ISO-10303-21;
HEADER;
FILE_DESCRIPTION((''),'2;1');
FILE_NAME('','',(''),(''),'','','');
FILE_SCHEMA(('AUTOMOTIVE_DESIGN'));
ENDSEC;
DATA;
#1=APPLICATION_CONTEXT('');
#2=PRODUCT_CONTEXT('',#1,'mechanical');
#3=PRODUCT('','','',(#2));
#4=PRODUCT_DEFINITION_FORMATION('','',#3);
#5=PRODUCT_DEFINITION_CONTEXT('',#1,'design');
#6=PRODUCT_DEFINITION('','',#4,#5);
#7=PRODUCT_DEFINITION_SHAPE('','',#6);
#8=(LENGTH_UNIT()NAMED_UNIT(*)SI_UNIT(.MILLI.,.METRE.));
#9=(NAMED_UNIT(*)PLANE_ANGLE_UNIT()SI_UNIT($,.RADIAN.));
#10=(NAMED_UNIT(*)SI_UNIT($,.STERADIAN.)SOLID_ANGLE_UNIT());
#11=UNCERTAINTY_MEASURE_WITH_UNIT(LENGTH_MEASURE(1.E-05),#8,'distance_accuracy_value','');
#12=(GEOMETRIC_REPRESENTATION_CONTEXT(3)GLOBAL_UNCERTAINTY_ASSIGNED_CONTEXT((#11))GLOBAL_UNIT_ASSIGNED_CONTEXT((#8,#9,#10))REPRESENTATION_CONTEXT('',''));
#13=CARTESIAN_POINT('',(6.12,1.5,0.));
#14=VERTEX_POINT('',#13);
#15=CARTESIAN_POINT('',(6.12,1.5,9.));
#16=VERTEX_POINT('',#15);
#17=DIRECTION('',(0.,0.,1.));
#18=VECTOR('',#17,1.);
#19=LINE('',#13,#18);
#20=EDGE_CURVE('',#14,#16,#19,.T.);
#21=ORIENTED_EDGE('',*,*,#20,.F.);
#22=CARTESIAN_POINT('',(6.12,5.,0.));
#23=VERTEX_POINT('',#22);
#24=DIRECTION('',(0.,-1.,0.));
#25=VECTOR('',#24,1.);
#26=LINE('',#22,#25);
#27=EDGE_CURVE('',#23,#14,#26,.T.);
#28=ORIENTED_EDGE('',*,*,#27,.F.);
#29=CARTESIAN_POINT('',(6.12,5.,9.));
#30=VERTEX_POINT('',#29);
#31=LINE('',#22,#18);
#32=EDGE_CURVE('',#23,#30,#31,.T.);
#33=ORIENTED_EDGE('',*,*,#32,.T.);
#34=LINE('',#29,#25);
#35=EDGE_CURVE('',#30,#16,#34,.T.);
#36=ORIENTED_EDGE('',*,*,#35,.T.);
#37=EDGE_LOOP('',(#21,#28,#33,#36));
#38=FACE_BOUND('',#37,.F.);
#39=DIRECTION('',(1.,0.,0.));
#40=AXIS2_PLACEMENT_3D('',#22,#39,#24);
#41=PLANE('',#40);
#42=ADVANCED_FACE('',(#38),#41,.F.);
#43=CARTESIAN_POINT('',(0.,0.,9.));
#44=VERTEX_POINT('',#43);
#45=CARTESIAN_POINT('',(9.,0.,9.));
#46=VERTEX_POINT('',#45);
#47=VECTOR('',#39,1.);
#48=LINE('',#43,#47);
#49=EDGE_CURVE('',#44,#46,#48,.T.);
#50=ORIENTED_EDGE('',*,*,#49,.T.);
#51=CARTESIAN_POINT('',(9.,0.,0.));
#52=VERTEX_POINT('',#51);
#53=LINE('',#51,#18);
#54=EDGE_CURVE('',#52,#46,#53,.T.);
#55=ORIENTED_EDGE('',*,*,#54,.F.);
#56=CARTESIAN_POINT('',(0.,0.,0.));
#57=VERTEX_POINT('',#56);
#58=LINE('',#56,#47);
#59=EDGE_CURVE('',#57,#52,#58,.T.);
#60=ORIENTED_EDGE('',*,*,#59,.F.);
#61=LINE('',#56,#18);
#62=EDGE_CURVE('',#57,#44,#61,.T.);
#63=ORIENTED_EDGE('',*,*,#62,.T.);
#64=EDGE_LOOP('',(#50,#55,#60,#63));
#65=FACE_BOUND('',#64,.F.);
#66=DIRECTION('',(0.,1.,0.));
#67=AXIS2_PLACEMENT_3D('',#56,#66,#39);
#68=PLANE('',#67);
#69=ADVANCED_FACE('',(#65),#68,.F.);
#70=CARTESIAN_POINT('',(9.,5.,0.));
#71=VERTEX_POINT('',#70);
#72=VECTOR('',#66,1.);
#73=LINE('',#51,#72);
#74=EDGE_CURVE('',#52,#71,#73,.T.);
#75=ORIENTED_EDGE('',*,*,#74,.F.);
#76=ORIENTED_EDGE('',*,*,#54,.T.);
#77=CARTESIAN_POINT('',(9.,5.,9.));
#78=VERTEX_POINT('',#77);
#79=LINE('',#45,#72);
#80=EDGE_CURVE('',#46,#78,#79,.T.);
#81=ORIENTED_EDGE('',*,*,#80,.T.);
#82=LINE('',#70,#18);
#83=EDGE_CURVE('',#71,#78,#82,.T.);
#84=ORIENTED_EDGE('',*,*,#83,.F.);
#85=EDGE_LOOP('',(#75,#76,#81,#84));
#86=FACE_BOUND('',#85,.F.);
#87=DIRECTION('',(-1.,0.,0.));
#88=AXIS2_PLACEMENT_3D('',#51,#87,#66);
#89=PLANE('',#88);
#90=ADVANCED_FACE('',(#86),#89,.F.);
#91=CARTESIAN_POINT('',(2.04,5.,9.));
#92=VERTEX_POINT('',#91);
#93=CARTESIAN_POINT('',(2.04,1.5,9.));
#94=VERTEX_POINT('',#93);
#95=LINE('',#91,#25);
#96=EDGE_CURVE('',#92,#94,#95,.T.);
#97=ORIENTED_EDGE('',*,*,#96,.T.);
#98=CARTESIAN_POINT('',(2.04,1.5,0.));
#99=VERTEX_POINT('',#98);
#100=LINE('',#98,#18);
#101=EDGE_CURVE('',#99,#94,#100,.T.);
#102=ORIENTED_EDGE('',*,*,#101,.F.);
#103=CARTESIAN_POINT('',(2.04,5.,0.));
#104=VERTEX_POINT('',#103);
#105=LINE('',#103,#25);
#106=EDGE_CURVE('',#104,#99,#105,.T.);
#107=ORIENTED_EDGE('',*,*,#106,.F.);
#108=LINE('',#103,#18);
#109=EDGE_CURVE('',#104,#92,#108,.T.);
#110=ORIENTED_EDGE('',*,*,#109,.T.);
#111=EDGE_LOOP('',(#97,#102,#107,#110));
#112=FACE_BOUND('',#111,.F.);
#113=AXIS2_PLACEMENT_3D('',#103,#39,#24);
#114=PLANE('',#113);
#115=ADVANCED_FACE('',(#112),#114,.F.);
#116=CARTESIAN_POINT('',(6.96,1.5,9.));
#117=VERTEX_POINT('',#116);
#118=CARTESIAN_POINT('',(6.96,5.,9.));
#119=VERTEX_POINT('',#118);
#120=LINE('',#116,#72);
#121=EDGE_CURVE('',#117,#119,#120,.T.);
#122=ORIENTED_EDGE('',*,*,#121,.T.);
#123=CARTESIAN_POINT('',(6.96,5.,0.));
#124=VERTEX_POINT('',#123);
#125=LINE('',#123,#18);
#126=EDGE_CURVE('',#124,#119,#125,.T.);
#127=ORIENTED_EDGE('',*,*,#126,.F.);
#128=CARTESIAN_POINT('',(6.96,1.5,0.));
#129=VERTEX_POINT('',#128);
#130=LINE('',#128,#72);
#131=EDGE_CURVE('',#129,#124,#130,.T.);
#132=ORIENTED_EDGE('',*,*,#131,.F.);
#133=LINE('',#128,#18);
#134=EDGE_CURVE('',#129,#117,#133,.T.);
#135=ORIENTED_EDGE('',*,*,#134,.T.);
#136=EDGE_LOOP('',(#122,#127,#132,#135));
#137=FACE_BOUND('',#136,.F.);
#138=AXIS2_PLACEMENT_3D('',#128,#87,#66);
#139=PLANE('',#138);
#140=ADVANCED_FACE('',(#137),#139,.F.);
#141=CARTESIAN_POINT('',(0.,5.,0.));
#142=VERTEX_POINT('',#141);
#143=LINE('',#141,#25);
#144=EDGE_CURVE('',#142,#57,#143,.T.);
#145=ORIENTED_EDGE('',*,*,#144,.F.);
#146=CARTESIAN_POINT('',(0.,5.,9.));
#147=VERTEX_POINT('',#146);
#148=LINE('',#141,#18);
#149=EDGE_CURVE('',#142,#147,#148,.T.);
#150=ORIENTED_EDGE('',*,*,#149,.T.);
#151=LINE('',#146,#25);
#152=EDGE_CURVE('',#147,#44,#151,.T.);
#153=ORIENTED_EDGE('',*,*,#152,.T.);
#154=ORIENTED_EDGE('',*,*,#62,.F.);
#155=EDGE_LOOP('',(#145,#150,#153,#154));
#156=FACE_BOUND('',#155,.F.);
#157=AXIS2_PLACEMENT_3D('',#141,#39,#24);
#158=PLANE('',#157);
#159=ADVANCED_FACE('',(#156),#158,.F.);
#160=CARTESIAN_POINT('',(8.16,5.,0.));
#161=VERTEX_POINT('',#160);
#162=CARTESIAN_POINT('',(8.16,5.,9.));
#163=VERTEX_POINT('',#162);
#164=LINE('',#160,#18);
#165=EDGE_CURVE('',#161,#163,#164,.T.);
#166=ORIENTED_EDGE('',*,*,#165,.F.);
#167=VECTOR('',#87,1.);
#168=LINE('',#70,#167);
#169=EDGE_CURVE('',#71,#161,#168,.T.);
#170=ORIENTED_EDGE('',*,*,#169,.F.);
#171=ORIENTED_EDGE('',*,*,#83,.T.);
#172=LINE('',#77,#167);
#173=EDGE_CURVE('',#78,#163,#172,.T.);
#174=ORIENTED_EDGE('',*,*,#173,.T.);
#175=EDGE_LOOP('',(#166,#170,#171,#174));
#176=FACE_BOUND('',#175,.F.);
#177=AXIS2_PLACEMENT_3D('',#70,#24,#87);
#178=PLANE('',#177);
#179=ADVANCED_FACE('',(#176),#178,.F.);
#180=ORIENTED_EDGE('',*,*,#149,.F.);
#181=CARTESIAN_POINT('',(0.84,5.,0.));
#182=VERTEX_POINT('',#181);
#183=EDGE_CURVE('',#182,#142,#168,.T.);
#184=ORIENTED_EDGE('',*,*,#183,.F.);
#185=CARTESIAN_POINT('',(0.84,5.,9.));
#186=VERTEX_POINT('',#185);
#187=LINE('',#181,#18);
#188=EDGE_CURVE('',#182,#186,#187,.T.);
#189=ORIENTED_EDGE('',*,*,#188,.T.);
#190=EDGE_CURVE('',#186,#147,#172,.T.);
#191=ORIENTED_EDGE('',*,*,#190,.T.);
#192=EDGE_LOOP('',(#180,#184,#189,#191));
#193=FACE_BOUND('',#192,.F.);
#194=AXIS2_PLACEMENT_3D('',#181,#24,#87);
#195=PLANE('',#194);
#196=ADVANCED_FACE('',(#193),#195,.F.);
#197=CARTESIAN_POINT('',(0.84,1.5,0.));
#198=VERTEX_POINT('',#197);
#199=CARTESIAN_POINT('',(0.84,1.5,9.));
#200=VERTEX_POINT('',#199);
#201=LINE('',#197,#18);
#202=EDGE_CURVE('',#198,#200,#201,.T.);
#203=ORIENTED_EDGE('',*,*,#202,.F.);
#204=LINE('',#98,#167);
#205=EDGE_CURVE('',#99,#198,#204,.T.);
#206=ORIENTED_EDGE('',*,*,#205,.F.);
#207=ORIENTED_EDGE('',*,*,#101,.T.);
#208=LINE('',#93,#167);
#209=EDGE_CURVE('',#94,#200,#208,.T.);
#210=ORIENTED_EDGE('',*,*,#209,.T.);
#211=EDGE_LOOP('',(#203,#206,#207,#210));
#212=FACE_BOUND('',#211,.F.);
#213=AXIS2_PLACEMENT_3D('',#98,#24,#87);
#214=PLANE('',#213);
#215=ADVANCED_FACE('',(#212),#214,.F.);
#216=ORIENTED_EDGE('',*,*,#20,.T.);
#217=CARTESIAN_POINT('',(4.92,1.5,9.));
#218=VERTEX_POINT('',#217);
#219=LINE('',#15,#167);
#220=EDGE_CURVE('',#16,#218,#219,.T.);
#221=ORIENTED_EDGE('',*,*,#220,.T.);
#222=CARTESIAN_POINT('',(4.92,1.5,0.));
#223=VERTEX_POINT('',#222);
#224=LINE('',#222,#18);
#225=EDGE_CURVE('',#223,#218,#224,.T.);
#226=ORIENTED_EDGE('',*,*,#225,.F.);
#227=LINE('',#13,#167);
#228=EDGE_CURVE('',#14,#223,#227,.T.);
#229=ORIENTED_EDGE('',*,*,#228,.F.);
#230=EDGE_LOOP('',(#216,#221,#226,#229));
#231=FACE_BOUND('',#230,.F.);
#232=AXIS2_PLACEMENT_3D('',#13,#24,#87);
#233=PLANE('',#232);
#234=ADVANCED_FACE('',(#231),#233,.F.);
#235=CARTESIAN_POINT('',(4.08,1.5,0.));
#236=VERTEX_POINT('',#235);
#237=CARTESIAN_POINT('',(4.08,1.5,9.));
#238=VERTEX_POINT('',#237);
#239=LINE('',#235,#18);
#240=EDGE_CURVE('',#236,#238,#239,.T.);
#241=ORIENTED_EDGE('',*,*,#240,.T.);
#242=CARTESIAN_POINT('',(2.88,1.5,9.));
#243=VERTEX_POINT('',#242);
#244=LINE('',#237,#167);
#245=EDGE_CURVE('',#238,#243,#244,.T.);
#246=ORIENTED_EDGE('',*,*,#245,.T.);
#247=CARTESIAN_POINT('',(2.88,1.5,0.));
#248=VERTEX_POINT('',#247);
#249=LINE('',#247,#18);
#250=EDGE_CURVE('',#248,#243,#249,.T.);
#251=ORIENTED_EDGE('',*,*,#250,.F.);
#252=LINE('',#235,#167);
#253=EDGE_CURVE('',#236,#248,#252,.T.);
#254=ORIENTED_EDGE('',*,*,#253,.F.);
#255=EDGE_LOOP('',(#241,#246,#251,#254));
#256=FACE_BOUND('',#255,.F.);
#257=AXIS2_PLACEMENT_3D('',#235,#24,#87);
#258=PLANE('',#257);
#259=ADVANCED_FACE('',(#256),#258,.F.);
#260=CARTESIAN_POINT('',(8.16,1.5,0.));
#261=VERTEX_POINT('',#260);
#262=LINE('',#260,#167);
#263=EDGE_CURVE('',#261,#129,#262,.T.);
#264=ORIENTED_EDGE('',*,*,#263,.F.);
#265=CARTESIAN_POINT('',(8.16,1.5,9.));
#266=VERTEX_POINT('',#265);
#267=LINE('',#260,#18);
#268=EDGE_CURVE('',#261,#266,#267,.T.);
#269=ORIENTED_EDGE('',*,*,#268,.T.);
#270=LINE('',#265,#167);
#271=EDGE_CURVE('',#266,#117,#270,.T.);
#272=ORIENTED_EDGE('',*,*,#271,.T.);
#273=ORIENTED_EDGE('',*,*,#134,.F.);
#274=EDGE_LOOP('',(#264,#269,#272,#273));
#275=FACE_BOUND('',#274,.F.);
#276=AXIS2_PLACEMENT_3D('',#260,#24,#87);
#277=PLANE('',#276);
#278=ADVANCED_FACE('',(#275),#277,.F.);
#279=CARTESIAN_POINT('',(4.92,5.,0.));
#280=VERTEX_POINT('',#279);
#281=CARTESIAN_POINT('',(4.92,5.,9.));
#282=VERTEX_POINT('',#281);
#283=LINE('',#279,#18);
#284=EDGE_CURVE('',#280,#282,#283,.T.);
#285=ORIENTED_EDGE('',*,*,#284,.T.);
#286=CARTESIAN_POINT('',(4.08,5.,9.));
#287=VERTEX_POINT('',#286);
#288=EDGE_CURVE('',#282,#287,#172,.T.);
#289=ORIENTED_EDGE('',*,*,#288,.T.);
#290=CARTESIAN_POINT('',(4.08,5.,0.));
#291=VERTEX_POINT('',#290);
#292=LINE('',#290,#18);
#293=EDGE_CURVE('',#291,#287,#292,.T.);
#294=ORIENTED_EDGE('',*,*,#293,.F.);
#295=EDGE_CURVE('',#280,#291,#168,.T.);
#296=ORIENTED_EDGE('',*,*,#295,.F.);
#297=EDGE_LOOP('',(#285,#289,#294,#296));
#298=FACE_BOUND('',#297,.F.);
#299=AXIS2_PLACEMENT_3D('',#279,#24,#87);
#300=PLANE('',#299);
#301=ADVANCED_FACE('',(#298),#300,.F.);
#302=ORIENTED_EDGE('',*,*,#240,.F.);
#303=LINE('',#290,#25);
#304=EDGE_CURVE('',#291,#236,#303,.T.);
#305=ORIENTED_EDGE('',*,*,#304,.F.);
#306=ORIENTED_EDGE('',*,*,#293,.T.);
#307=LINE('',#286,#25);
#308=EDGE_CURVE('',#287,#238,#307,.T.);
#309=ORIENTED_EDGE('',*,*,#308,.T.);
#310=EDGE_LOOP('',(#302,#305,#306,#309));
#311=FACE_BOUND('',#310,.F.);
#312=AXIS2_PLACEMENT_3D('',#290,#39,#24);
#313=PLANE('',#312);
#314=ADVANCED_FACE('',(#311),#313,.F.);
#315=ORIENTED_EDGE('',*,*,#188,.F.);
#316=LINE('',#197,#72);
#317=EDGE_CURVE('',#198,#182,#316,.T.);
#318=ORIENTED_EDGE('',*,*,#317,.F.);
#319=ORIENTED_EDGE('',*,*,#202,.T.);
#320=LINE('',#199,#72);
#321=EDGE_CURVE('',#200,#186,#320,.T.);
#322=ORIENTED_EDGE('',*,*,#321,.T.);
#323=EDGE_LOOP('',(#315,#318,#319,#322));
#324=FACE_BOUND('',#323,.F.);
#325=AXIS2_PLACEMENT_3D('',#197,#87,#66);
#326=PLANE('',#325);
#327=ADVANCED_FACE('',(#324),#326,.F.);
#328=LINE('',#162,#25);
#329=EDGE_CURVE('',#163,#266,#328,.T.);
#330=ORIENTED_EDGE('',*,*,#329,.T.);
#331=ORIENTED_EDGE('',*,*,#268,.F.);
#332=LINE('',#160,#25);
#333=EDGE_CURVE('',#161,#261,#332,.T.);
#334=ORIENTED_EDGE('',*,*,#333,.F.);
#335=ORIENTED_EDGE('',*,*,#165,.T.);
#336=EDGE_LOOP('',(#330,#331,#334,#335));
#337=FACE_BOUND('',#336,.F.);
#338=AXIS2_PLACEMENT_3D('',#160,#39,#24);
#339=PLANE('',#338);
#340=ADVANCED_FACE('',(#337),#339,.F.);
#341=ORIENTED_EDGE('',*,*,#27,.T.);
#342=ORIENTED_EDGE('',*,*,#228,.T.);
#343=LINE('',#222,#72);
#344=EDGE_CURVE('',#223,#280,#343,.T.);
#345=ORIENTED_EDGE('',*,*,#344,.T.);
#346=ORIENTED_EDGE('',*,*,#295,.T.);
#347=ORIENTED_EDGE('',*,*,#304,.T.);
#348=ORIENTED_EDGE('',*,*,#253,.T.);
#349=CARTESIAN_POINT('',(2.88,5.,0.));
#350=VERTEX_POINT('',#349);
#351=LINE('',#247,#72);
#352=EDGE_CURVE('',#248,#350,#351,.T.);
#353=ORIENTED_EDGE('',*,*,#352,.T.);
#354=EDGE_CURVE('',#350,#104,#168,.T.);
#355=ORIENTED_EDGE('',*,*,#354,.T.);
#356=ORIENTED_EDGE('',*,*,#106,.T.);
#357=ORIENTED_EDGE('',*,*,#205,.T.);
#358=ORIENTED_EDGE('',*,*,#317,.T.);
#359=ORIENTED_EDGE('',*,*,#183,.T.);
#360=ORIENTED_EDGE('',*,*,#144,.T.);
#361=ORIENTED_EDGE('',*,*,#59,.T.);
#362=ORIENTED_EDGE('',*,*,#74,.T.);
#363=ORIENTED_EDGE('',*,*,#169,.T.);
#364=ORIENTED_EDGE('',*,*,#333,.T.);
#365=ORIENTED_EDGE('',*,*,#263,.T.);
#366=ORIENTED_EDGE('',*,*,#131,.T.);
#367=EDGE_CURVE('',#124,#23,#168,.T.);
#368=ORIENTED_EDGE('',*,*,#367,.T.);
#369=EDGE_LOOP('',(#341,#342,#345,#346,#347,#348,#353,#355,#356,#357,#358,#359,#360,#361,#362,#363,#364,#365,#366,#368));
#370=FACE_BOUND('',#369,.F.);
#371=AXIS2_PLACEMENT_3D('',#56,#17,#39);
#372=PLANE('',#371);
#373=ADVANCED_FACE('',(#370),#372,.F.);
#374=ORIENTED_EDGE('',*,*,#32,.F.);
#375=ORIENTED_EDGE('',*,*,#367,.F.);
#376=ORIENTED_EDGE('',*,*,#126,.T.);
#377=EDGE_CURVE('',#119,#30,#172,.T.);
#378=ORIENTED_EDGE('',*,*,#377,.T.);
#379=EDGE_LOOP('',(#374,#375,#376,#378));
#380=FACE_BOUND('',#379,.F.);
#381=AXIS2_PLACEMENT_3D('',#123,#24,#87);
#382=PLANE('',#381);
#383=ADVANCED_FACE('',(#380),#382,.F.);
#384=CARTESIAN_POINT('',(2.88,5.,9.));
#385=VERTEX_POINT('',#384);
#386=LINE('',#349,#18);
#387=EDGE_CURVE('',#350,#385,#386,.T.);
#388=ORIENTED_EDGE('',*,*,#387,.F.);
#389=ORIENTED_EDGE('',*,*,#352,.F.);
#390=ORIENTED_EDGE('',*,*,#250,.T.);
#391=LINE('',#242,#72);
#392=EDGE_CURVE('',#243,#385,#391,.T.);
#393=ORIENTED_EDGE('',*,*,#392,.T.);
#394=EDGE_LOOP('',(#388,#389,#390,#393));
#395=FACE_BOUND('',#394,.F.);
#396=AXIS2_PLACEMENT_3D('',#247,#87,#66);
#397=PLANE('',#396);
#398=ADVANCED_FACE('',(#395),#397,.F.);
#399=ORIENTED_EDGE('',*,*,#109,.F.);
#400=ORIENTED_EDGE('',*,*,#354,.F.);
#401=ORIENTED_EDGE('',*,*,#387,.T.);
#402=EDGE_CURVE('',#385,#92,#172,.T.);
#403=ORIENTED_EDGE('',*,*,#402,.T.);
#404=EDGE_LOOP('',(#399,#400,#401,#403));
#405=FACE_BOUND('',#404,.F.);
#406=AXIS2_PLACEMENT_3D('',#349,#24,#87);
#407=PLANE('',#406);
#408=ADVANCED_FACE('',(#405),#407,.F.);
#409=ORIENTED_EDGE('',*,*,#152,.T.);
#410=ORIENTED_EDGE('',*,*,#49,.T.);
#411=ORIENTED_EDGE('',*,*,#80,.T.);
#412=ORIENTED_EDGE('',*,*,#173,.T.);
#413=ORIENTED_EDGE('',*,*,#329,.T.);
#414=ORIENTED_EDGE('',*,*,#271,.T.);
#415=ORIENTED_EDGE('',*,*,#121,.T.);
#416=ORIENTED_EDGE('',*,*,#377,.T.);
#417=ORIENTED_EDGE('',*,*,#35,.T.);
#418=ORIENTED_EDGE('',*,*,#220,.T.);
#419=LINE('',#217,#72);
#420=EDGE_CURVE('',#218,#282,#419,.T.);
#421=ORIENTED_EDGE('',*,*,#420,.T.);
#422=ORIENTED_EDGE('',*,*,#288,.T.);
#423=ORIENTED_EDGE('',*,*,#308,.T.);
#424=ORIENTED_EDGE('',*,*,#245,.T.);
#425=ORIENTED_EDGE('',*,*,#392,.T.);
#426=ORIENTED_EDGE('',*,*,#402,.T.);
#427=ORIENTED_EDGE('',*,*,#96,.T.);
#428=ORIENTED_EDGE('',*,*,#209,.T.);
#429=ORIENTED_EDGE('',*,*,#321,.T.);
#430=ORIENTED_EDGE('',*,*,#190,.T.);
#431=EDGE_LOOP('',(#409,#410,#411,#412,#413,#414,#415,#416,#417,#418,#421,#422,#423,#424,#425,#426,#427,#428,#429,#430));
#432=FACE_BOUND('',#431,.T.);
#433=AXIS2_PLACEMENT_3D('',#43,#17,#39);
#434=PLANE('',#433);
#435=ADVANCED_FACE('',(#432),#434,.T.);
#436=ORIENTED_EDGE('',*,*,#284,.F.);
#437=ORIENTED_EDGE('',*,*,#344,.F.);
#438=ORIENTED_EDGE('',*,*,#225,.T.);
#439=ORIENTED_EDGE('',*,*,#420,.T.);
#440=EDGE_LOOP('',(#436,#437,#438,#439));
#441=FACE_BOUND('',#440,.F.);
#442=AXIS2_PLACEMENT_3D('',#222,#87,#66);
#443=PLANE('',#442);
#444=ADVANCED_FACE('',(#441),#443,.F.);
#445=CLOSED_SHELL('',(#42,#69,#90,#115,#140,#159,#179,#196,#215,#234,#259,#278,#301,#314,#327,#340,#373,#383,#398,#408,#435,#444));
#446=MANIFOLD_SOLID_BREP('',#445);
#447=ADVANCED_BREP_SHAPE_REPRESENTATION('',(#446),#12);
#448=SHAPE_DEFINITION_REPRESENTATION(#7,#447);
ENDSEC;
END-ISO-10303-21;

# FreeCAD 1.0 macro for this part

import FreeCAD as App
import Part
import Sketcher
from FreeCAD import Vector
Q = App.Units.Quantity


def add_polygon(sketch, points):
    """Adds a closed chain of lines whose ends are joined by coincident constraints."""
    first, n = sketch.GeometryCount, len(points)
    for a, b in zip(points, points[1:] + points[:1]):
        sketch.addGeometry(Part.LineSegment(App.Vector(*a, 0), App.Vector(*b, 0)), False)
    for i in range(n):
        sketch.addConstraint(Sketcher.Constraint("Coincident", first + i, 2, first + (i + 1) % n, 1))

doc = App.newDocument("Part")
body = doc.addObject("PartDesign::Body", "Body")

# Sketch on XY plane
sketch1 = doc.addObject("Sketcher::SketchObject", "Sketch")
body.addObject(sketch1)
sketch1.AttachmentSupport = (doc.XY_Plane, [""])
sketch1.MapMode = "FlatFace"
add_polygon(sketch1, [(0, 5), (0, 0), (9, 0), (9, 5), (8.2, 5), (8.2, 1.5), (7, 1.5), (7, 5), (6.1, 5), (6.1, 1.5), (4.9, 1.5), (4.9, 5), (4.1, 5), (4.1, 1.5), (2.9, 1.5), (2.9, 5), (2, 5), (2, 1.5), (0.8, 1.5), (0.8, 5)])  # lines 0-19
sketch1.addConstraint(Sketcher.Constraint("Vertical", 0))
sketch1.addConstraint(Sketcher.Constraint("Horizontal", 1))
sketch1.addConstraint(Sketcher.Constraint("Vertical", 2))
sketch1.addConstraint(Sketcher.Constraint("Horizontal", 3))
sketch1.addConstraint(Sketcher.Constraint("Vertical", 4))
sketch1.addConstraint(Sketcher.Constraint("Horizontal", 5))
sketch1.addConstraint(Sketcher.Constraint("Vertical", 6))
sketch1.addConstraint(Sketcher.Constraint("Horizontal", 7))
sketch1.addConstraint(Sketcher.Constraint("Vertical", 8))
sketch1.addConstraint(Sketcher.Constraint("Horizontal", 9))
sketch1.addConstraint(Sketcher.Constraint("Vertical", 10))
sketch1.addConstraint(Sketcher.Constraint("Horizontal", 11))
sketch1.addConstraint(Sketcher.Constraint("Vertical", 12))
sketch1.addConstraint(Sketcher.Constraint("Horizontal", 13))
sketch1.addConstraint(Sketcher.Constraint("Vertical", 14))
sketch1.addConstraint(Sketcher.Constraint("Horizontal", 15))
sketch1.addConstraint(Sketcher.Constraint("Vertical", 16))
sketch1.addConstraint(Sketcher.Constraint("Horizontal", 17))
sketch1.addConstraint(Sketcher.Constraint("Vertical", 18))
sketch1.addConstraint(Sketcher.Constraint("Horizontal", 19))
sketch1.addConstraint(Sketcher.Constraint("Coincident", 0, 2, -1, 1))
sketch1.addConstraint(Sketcher.Constraint("Horizontal", 3, 2, 6, 2))
sketch1.addConstraint(Sketcher.Constraint("Horizontal", 5, 2, 8, 2))
sketch1.addConstraint(Sketcher.Constraint("Horizontal", 7, 2, 10, 2))
sketch1.addConstraint(Sketcher.Constraint("Horizontal", 9, 2, 12, 2))
sketch1.addConstraint(Sketcher.Constraint("Horizontal", 11, 2, 14, 2))
sketch1.addConstraint(Sketcher.Constraint("Horizontal", 13, 2, 16, 2))
sketch1.addConstraint(Sketcher.Constraint("Horizontal", 15, 2, 18, 2))
sketch1.addConstraint(Sketcher.Constraint("Equal", 3, 7))
sketch1.addConstraint(Sketcher.Constraint("Equal", 5, 9))
sketch1.addConstraint(Sketcher.Constraint("Equal", 7, 11))
sketch1.addConstraint(Sketcher.Constraint("Equal", 9, 13))
sketch1.addConstraint(Sketcher.Constraint("Equal", 11, 15))
sketch1.addConstraint(Sketcher.Constraint("Equal", 13, 17))
sketch1.addConstraint(Sketcher.Constraint("Equal", 15, 19))
sketch1.addConstraint(Sketcher.Constraint("DistanceX", 1, 1, 1, 2, Q("9 mm")))
sketch1.addConstraint(Sketcher.Constraint("DistanceY", 0, 2, 0, 1, Q("5 mm")))
sketch1.addConstraint(Sketcher.Constraint("DistanceX", 5, 2, 5, 1, Q("1.2 mm")))
sketch1.addConstraint(Sketcher.Constraint("DistanceY", 4, 2, 4, 1, Q("3.5 mm")))
pad1 = doc.addObject("PartDesign::Pad", "Pad")
body.addObject(pad1)
pad1.Profile = sketch1
pad1.Length = 9

doc.recompute()
